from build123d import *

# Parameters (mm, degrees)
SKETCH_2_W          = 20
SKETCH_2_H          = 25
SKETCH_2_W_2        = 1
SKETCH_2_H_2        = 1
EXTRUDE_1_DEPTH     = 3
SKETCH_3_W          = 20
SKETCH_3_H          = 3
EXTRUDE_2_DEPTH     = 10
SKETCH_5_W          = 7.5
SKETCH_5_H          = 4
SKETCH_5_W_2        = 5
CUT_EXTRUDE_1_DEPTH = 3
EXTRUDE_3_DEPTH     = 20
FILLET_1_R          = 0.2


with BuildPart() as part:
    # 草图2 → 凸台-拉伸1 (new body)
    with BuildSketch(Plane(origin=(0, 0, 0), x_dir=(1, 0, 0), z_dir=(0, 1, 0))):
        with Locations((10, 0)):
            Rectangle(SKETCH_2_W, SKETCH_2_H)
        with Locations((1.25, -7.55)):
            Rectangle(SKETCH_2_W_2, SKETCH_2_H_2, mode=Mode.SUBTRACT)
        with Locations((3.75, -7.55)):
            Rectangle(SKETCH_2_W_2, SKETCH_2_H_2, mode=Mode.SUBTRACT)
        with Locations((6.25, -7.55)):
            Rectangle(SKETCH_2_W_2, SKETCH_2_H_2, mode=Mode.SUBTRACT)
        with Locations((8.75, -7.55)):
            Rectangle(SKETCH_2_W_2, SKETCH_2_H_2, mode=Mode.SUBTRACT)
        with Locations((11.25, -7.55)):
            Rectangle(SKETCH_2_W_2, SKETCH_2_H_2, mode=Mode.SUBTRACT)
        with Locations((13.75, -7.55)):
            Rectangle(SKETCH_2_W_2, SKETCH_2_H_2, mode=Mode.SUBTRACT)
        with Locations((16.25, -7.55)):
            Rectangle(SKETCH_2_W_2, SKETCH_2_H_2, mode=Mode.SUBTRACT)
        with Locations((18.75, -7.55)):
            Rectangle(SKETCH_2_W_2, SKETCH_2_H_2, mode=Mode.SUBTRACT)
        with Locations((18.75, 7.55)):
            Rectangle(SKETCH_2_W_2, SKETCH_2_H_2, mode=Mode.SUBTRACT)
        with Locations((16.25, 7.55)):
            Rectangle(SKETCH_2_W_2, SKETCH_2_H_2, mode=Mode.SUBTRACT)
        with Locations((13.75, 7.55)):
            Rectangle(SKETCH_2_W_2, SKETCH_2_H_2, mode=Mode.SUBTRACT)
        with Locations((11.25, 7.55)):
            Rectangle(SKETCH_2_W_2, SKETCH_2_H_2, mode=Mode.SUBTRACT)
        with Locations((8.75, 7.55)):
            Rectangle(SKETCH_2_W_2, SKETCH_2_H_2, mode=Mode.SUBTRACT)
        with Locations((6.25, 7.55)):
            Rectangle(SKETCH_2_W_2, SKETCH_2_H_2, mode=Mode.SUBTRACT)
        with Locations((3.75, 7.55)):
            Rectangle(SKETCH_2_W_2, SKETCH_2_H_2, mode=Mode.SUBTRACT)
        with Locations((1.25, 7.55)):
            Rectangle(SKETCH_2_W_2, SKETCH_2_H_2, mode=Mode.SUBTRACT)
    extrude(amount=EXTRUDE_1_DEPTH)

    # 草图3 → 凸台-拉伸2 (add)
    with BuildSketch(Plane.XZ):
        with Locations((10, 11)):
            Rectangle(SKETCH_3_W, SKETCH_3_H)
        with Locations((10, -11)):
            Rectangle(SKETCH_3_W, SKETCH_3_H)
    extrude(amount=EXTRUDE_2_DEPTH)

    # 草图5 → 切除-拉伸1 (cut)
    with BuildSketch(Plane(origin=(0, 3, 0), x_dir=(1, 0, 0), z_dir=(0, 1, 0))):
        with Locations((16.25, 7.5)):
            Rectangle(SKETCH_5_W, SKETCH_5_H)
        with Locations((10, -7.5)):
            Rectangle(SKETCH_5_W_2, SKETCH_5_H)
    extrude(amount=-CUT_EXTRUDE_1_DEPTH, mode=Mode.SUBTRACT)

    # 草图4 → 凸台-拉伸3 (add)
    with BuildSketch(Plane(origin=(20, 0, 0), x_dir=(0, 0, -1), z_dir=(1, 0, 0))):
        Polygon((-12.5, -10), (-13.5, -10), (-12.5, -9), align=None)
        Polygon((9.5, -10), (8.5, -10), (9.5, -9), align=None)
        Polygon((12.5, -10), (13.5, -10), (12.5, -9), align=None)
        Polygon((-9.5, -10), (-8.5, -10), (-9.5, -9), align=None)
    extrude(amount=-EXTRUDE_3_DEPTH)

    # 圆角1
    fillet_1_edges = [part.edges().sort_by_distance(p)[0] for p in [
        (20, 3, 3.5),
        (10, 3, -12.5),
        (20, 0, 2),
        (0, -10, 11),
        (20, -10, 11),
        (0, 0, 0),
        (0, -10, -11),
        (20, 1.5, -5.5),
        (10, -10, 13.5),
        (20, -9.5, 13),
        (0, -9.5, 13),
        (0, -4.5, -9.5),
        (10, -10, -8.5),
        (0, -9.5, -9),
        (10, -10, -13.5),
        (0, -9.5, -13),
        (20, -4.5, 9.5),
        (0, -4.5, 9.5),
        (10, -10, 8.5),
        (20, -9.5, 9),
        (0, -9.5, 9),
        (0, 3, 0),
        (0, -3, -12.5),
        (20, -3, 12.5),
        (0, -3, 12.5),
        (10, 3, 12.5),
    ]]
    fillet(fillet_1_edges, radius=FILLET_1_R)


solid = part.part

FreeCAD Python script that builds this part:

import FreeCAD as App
import Part
import Sketcher

V = App.Vector
Q = App.Units.Quantity


def edges_at(feature, points):
    """Names of the edges that pass closest to the given points."""
    edges = feature.Shape.Edges
    near = lambda p: min(range(len(edges)), key=lambda i: edges[i].distToShape(Part.Vertex(*p))[0])
    return sorted({f"Edge{near(p) + 1}" for p in points})


def add_polygon(sketch, points):
    """Adds a closed chain of lines whose ends are joined by coincident constraints."""
    first, n = sketch.GeometryCount, len(points)
    for a, b in zip(points, points[1:] + points[:1]):
        sketch.addGeometry(Part.LineSegment(App.Vector(*a, 0), App.Vector(*b, 0)), False)
    for i in range(n):
        sketch.addConstraint(Sketcher.Constraint("Coincident", first + i, 2, first + (i + 1) % n, 1))

doc = App.newDocument("Part")
body = doc.addObject("PartDesign::Body", "Body")

# Sketch on XZ plane
sketch1 = body.newObject("Sketcher::SketchObject", "Sketch")
sketch1.AttachmentSupport = (doc.getObject("XZ_Plane"), [""])
sketch1.MapMode = "FlatFace"
add_polygon(sketch1, [(0, -12.5), (0, 12.5), (20, 12.5), (20, -12.5)])  # lines 0-3
add_polygon(sketch1, [(1.8, 8.1), (0.8, 8.1), (0.8, 7), (1.8, 7)])  # lines 4-7
add_polygon(sketch1, [(4.2, 8.1), (3.2, 8.1), (3.2, 7), (4.2, 7)])  # lines 8-11
add_polygon(sketch1, [(6.8, 8.1), (5.8, 8.1), (5.8, 7), (6.8, 7)])  # lines 12-15
add_polygon(sketch1, [(9.2, 8.1), (8.2, 8.1), (8.2, 7), (9.2, 7)])  # lines 16-19
add_polygon(sketch1, [(11.8, 8.1), (10.8, 8.1), (10.8, 7), (11.8, 7)])  # lines 20-23
add_polygon(sketch1, [(14.2, 8.1), (13.2, 8.1), (13.2, 7), (14.2, 7)])  # lines 24-27
add_polygon(sketch1, [(16.8, 8.1), (15.8, 8.1), (15.8, 7), (16.8, 7)])  # lines 28-31
add_polygon(sketch1, [(19.2, 8.1), (18.2, 8.1), (18.2, 7), (19.2, 7)])  # lines 32-35
add_polygon(sketch1, [(1.8, -7), (0.8, -7), (0.8, -8.1), (1.8, -8.1)])  # lines 36-39
add_polygon(sketch1, [(4.2, -7), (3.2, -7), (3.2, -8.1), (4.2, -8.1)])  # lines 40-43
add_polygon(sketch1, [(6.8, -7), (5.8, -7), (5.8, -8.1), (6.8, -8.1)])  # lines 44-47
add_polygon(sketch1, [(9.2, -7), (8.2, -7), (8.2, -8.1), (9.2, -8.1)])  # lines 48-51
add_polygon(sketch1, [(11.8, -7), (10.8, -7), (10.8, -8.1), (11.8, -8.1)])  # lines 52-55
add_polygon(sketch1, [(14.2, -7), (13.2, -7), (13.2, -8.1), (14.2, -8.1)])  # lines 56-59
add_polygon(sketch1, [(16.8, -7), (15.8, -7), (15.8, -8.1), (16.8, -8.1)])  # lines 60-63
add_polygon(sketch1, [(19.2, -7), (18.2, -7), (18.2, -8.1), (19.2, -8.1)])  # lines 64-67
sketch1.addConstraint(Sketcher.Constraint("Vertical", 0))
sketch1.addConstraint(Sketcher.Constraint("Horizontal", 1))
sketch1.addConstraint(Sketcher.Constraint("Vertical", 2))
sketch1.addConstraint(Sketcher.Constraint("Horizontal", 3))
sketch1.addConstraint(Sketcher.Constraint("Horizontal", 4))
sketch1.addConstraint(Sketcher.Constraint("Vertical", 5))
sketch1.addConstraint(Sketcher.Constraint("Horizontal", 6))
sketch1.addConstraint(Sketcher.Constraint("Vertical", 7))
sketch1.addConstraint(Sketcher.Constraint("Horizontal", 8))
sketch1.addConstraint(Sketcher.Constraint("Vertical", 9))
sketch1.addConstraint(Sketcher.Constraint("Horizontal", 10))
sketch1.addConstraint(Sketcher.Constraint("Vertical", 11))
sketch1.addConstraint(Sketcher.Constraint("Horizontal", 12))
sketch1.addConstraint(Sketcher.Constraint("Vertical", 13))
sketch1.addConstraint(Sketcher.Constraint("Horizontal", 14))
sketch1.addConstraint(Sketcher.Constraint("Vertical", 15))
sketch1.addConstraint(Sketcher.Constraint("Horizontal", 16))
sketch1.addConstraint(Sketcher.Constraint("Vertical", 17))
sketch1.addConstraint(Sketcher.Constraint("Horizontal", 18))
sketch1.addConstraint(Sketcher.Constraint("Vertical", 19))
sketch1.addConstraint(Sketcher.Constraint("Horizontal", 20))
sketch1.addConstraint(Sketcher.Constraint("Vertical", 21))
sketch1.addConstraint(Sketcher.Constraint("Horizontal", 22))
sketch1.addConstraint(Sketcher.Constraint("Vertical", 23))
sketch1.addConstraint(Sketcher.Constraint("Horizontal", 24))
sketch1.addConstraint(Sketcher.Constraint("Vertical", 25))
sketch1.addConstraint(Sketcher.Constraint("Horizontal", 26))
sketch1.addConstraint(Sketcher.Constraint("Vertical", 27))
sketch1.addConstraint(Sketcher.Constraint("Horizontal", 28))
sketch1.addConstraint(Sketcher.Constraint("Vertical", 29))
sketch1.addConstraint(Sketcher.Constraint("Horizontal", 30))
sketch1.addConstraint(Sketcher.Constraint("Vertical", 31))
sketch1.addConstraint(Sketcher.Constraint("Horizontal", 32))
sketch1.addConstraint(Sketcher.Constraint("Vertical", 33))
sketch1.addConstraint(Sketcher.Constraint("Horizontal", 34))
sketch1.addConstraint(Sketcher.Constraint("Vertical", 35))
sketch1.addConstraint(Sketcher.Constraint("Horizontal", 36))
sketch1.addConstraint(Sketcher.Constraint("Vertical", 37))
sketch1.addConstraint(Sketcher.Constraint("Horizontal", 38))
sketch1.addConstraint(Sketcher.Constraint("Vertical", 39))
sketch1.addConstraint(Sketcher.Constraint("Horizontal", 40))
sketch1.addConstraint(Sketcher.Constraint("Vertical", 41))
sketch1.addConstraint(Sketcher.Constraint("Horizontal", 42))
sketch1.addConstraint(Sketcher.Constraint("Vertical", 43))
sketch1.addConstraint(Sketcher.Constraint("Horizontal", 44))
sketch1.addConstraint(Sketcher.Constraint("Vertical", 45))
sketch1.addConstraint(Sketcher.Constraint("Horizontal", 46))
sketch1.addConstraint(Sketcher.Constraint("Vertical", 47))
sketch1.addConstraint(Sketcher.Constraint("Horizontal", 48))
sketch1.addConstraint(Sketcher.Constraint("Vertical", 49))
sketch1.addConstraint(Sketcher.Constraint("Horizontal", 50))
sketch1.addConstraint(Sketcher.Constraint("Vertical", 51))
sketch1.addConstraint(Sketcher.Constraint("Horizontal", 52))
sketch1.addConstraint(Sketcher.Constraint("Vertical", 53))
sketch1.addConstraint(Sketcher.Constraint("Horizontal", 54))
sketch1.addConstraint(Sketcher.Constraint("Vertical", 55))
sketch1.addConstraint(Sketcher.Constraint("Horizontal", 56))
sketch1.addConstraint(Sketcher.Constraint("Vertical", 57))
sketch1.addConstraint(Sketcher.Constraint("Horizontal", 58))
sketch1.addConstraint(Sketcher.Constraint("Vertical", 59))
sketch1.addConstraint(Sketcher.Constraint("Horizontal", 60))
sketch1.addConstraint(Sketcher.Constraint("Vertical", 61))
sketch1.addConstraint(Sketcher.Constraint("Horizontal", 62))
sketch1.addConstraint(Sketcher.Constraint("Vertical", 63))
sketch1.addConstraint(Sketcher.Constraint("Horizontal", 64))
sketch1.addConstraint(Sketcher.Constraint("Vertical", 65))
sketch1.addConstraint(Sketcher.Constraint("Horizontal", 66))
sketch1.addConstraint(Sketcher.Constraint("Vertical", 67))
sketch1.addConstraint(Sketcher.Constraint("Symmetric", 0, 2, 3, 2, -1, 1))
sketch1.addConstraint(Sketcher.Constraint("Symmetric", 5, 2, 36, 2, -1))
sketch1.addConstraint(Sketcher.Constraint("Symmetric", 7, 2, 38, 2, -1))
sketch1.addConstraint(Sketcher.Constraint("Symmetric", 9, 2, 40, 2, -1))
sketch1.addConstraint(Sketcher.Constraint("Symmetric", 11, 2, 42, 2, -1))
sketch1.addConstraint(Sketcher.Constraint("Symmetric", 13, 2, 44, 2, -1))
sketch1.addConstraint(Sketcher.Constraint("Symmetric", 15, 2, 46, 2, -1))
sketch1.addConstraint(Sketcher.Constraint("Symmetric", 17, 2, 48, 2, -1))
sketch1.addConstraint(Sketcher.Constraint("Symmetric", 19, 2, 50, 2, -1))
sketch1.addConstraint(Sketcher.Constraint("Symmetric", 21, 2, 52, 2, -1))
sketch1.addConstraint(Sketcher.Constraint("Symmetric", 23, 2, 54, 2, -1))
sketch1.addConstraint(Sketcher.Constraint("Symmetric", 25, 2, 56, 2, -1))
sketch1.addConstraint(Sketcher.Constraint("Symmetric", 27, 2, 58, 2, -1))
sketch1.addConstraint(Sketcher.Constraint("Symmetric", 29, 2, 60, 2, -1))
sketch1.addConstraint(Sketcher.Constraint("Symmetric", 31, 2, 62, 2, -1))
sketch1.addConstraint(Sketcher.Constraint("Symmetric", 33, 2, 64, 2, -1))
sketch1.addConstraint(Sketcher.Constraint("Symmetric", 35, 2, 66, 2, -1))
sketch1.addConstraint(Sketcher.Constraint("Horizontal", 7, 2, 8, 2))
sketch1.addConstraint(Sketcher.Constraint("Horizontal", 6, 2, 9, 2))
sketch1.addConstraint(Sketcher.Constraint("Horizontal", 11, 2, 12, 2))
sketch1.addConstraint(Sketcher.Constraint("Horizontal", 10, 2, 13, 2))
sketch1.addConstraint(Sketcher.Constraint("Horizontal", 15, 2, 16, 2))
sketch1.addConstraint(Sketcher.Constraint("Horizontal", 14, 2, 17, 2))
sketch1.addConstraint(Sketcher.Constraint("Horizontal", 19, 2, 20, 2))
sketch1.addConstraint(Sketcher.Constraint("Horizontal", 18, 2, 21, 2))
sketch1.addConstraint(Sketcher.Constraint("Horizontal", 23, 2, 24, 2))
sketch1.addConstraint(Sketcher.Constraint("Horizontal", 22, 2, 25, 2))
sketch1.addConstraint(Sketcher.Constraint("Horizontal", 27, 2, 28, 2))
sketch1.addConstraint(Sketcher.Constraint("Horizontal", 26, 2, 29, 2))
sketch1.addConstraint(Sketcher.Constraint("Horizontal", 31, 2, 32, 2))
sketch1.addConstraint(Sketcher.Constraint("Horizontal", 30, 2, 33, 2))
sketch1.addConstraint(Sketcher.Constraint("Equal", 6, 8))
sketch1.addConstraint(Sketcher.Constraint("Equal", 10, 12))
sketch1.addConstraint(Sketcher.Constraint("Equal", 14, 16))
sketch1.addConstraint(Sketcher.Constraint("Equal", 18, 20))
sketch1.addConstraint(Sketcher.Constraint("Equal", 22, 24))
sketch1.addConstraint(Sketcher.Constraint("Equal", 26, 28))
sketch1.addConstraint(Sketcher.Constraint("Equal", 30, 32))
sketch1.addConstraint(Sketcher.Constraint("Equal", 66, 5))
sketch1.addConstraint(Sketcher.Constraint("DistanceX", 1, 1, 1, 2, Q("20 mm")))
sketch1.addConstraint(Sketcher.Constraint("DistanceX", 4, 2, 4, 1, Q("1 mm")))
sketch1.addConstraint(Sketcher.Constraint("DistanceY", 0, 1, 0, 2, Q("25 mm")))
sketch1.addConstraint(Sketcher.Constraint("DistanceX", -1, 1, 4, 2, Q("0.75 mm")))
sketch1.addConstraint(Sketcher.Constraint("DistanceY", -1, 1, 4, 2, Q("8.05 mm")))
sketch1.addConstraint(Sketcher.Constraint("DistanceX", -1, 1, 8, 2, Q("3.25 mm")))
sketch1.addConstraint(Sketcher.Constraint("DistanceX", -1, 1, 12, 2, Q("5.75 mm")))
sketch1.addConstraint(Sketcher.Constraint("DistanceX", -1, 1, 16, 2, Q("8.25 mm")))
sketch1.addConstraint(Sketcher.Constraint("DistanceX", -1, 1, 20, 2, Q("10.75 mm")))
sketch1.addConstraint(Sketcher.Constraint("DistanceX", -1, 1, 24, 2, Q("13.25 mm")))
sketch1.addConstraint(Sketcher.Constraint("DistanceX", -1, 1, 28, 2, Q("15.75 mm")))
sketch1.addConstraint(Sketcher.Constraint("DistanceX", -1, 1, 32, 2, Q("18.25 mm")))
pad1 = body.newObject("PartDesign::Pad", "Pad")
pad1.Profile = sketch1
pad1.Length = 3
pad1.Reversed = True

# Sketch on XZ plane
sketch2 = body.newObject("Sketcher::SketchObject", "Sketch001")
sketch2.AttachmentSupport = (doc.getObject("XZ_Plane"), [""])
sketch2.MapMode = "FlatFace"
add_polygon(sketch2, [(0, 12.5), (0, 9.5), (20, 9.5), (20, 12.5)])  # lines 0-3
add_polygon(sketch2, [(0, -9.5), (0, -12.5), (20, -12.5), (20, -9.5)])  # lines 4-7
sketch2.addConstraint(Sketcher.Constraint("Vertical", 0))
sketch2.addConstraint(Sketcher.Constraint("Horizontal", 1))
sketch2.addConstraint(Sketcher.Constraint("Vertical", 2))
sketch2.addConstraint(Sketcher.Constraint("Horizontal", 3))
sketch2.addConstraint(Sketcher.Constraint("Vertical", 4))
sketch2.addConstraint(Sketcher.Constraint("Horizontal", 5))
sketch2.addConstraint(Sketcher.Constraint("Vertical", 6))
sketch2.addConstraint(Sketcher.Constraint("Horizontal", 7))
sketch2.addConstraint(Sketcher.Constraint("Symmetric", 3, 2, 4, 2, -1, 1))
sketch2.addConstraint(Sketcher.Constraint("Symmetric", 1, 2, 6, 2, -1))
sketch2.addConstraint(Sketcher.Constraint("PointOnObject", 0, 2, -2))
sketch2.addConstraint(Sketcher.Constraint("DistanceX", 1, 1, 1, 2, Q("20 mm")))
sketch2.addConstraint(Sketcher.Constraint("DistanceY", 0, 2, 0, 1, Q("3 mm")))
sketch2.addConstraint(Sketcher.Constraint("DistanceY", 4, 2, 0, 2, Q("22 mm")))
pad2 = body.newObject("PartDesign::Pad", "Pad001")
pad2.Profile = sketch2
pad2.Length = 10

# Sketch on XZ plane
sketch3 = body.newObject("Sketcher::SketchObject", "Sketch002")
sketch3.AttachmentSupport = (doc.getObject("XZ_Plane"), [""])
sketch3.MapMode = "FlatFace"
sketch3.AttachmentOffset = App.Placement(V(0, 0, -3), App.Rotation())
add_polygon(sketch3, [(12.5, -9.5), (12.5, -5.5), (20, -5.5), (20, -9.5)])  # lines 0-3
add_polygon(sketch3, [(7.5, 5.5), (7.5, 9.5), (12.5, 9.5), (12.5, 5.5)])  # lines 4-7
sketch3.addConstraint(Sketcher.Constraint("Vertical", 0))
sketch3.addConstraint(Sketcher.Constraint("Horizontal", 1))
sketch3.addConstraint(Sketcher.Constraint("Vertical", 2))
sketch3.addConstraint(Sketcher.Constraint("Horizontal", 3))
sketch3.addConstraint(Sketcher.Constraint("Vertical", 4))
sketch3.addConstraint(Sketcher.Constraint("Horizontal", 5))
sketch3.addConstraint(Sketcher.Constraint("Vertical", 6))
sketch3.addConstraint(Sketcher.Constraint("Horizontal", 7))
sketch3.addConstraint(Sketcher.Constraint("Symmetric", 3, 2, 5, 2, -1))
sketch3.addConstraint(Sketcher.Constraint("Equal", 2, 4))
sketch3.addConstraint(Sketcher.Constraint("DistanceX", 5, 1, 5, 2, Q("5 mm")))
sketch3.addConstraint(Sketcher.Constraint("DistanceY", 0, 1, 0, 2, Q("4 mm")))
sketch3.addConstraint(Sketcher.Constraint("DistanceX", 1, 1, 1, 2, Q("7.5 mm")))
sketch3.addConstraint(Sketcher.Constraint("DistanceX", -1, 1, 1, 2, Q("20 mm")))
sketch3.addConstraint(Sketcher.Constraint("DistanceY", 0, 2, 4, 2, Q("15 mm")))
pocket1 = body.newObject("PartDesign::Pocket", "Pocket")
pocket1.Profile = sketch3
pocket1.Length = 3
pocket1.Reversed = True

# Sketch on YZ plane
sketch4 = body.newObject("Sketcher::SketchObject", "Sketch003")
sketch4.AttachmentSupport = (doc.getObject("YZ_Plane"), [""])
sketch4.MapMode = "FlatFace"
sketch4.AttachmentOffset = App.Placement(V(0, 0, 20), App.Rotation())
add_polygon(sketch4, [(-10, 13.5), (-10, 12.5), (-9, 12.5)])  # lines 0-2
add_polygon(sketch4, [(-10, -8.5), (-10, -9.5), (-9, -9.5)])  # lines 3-5
add_polygon(sketch4, [(-10, -12.5), (-10, -13.5), (-9, -12.5)])  # lines 6-8
add_polygon(sketch4, [(-10, 9.5), (-10, 8.5), (-9, 9.5)])  # lines 9-11
sketch4.addConstraint(Sketcher.Constraint("Vertical", 0))
sketch4.addConstraint(Sketcher.Constraint("Horizontal", 1))
sketch4.addConstraint(Sketcher.Constraint("Vertical", 3))
sketch4.addConstraint(Sketcher.Constraint("Horizontal", 4))
sketch4.addConstraint(Sketcher.Constraint("Vertical", 6))
sketch4.addConstraint(Sketcher.Constraint("Horizontal", 8))
sketch4.addConstraint(Sketcher.Constraint("Vertical", 9))
sketch4.addConstraint(Sketcher.Constraint("Horizontal", 11))
sketch4.addConstraint(Sketcher.Constraint("Symmetric", 2, 2, 6, 2, -1))
sketch4.addConstraint(Sketcher.Constraint("Symmetric", 1, 2, 7, 2, -1))
sketch4.addConstraint(Sketcher.Constraint("Symmetric", 5, 2, 9, 2, -1))
sketch4.addConstraint(Sketcher.Constraint("Symmetric", 4, 2, 10, 2, -1))
sketch4.addConstraint(Sketcher.Constraint("Parallel", 2, 5))
sketch4.addConstraint(Sketcher.Constraint("Perpendicular", 5, 7))
sketch4.addConstraint(Sketcher.Constraint("Vertical", 2, 2, 3, 2))
sketch4.addConstraint(Sketcher.Constraint("Vertical", 1, 2, 4, 2))
sketch4.addConstraint(Sketcher.Constraint("DistanceX", 1, 1, 1, 2, Q("1 mm")))
sketch4.addConstraint(Sketcher.Constraint("DistanceX", 0, 2, -1, 1, Q("10 mm")))
sketch4.addConstraint(Sketcher.Constraint("DistanceY", 3, 2, 0, 2, Q("22 mm")))
sketch4.addConstraint(Sketcher.Constraint("DistanceY", 6, 2, 3, 2, Q("4 mm")))
pad3 = body.newObject("PartDesign::Pad", "Pad002")
pad3.Profile = sketch4
pad3.Length = 20
pad3.Reversed = True
doc.recompute()

fillet = body.newObject("PartDesign::Fillet", "Fillet")
fillet.Base = (pad3, edges_at(pad3, [
    (20, 3, 3.5),
    (10, 3, -12.5),
    (20, 0, 2),
    (0, -10, 11),
    (20, -10, 11),
    (0, 0, 0),
    (0, -10, -11),
    (20, 1.5, -5.5),
    (10, -10, 13.5),
    (20, -9.5, 13),
    (0, -9.5, 13),
    (0, -4.5, -9.5),
    (10, -10, -8.5),
    (0, -9.5, -9),
    (10, -10, -13.5),
    (0, -9.5, -13),
    (20, -4.5, 9.5),
    (0, -4.5, 9.5),
    (10, -10, 8.5),
    (20, -9.5, 9),
    (0, -9.5, 9),
    (0, 3, 0),
    (0, -3, -12.5),
    (20, -3, 12.5),
    (0, -3, 12.5),
    (10, 3, 12.5),
]))
fillet.Radius = 0.2

doc.recompute()
